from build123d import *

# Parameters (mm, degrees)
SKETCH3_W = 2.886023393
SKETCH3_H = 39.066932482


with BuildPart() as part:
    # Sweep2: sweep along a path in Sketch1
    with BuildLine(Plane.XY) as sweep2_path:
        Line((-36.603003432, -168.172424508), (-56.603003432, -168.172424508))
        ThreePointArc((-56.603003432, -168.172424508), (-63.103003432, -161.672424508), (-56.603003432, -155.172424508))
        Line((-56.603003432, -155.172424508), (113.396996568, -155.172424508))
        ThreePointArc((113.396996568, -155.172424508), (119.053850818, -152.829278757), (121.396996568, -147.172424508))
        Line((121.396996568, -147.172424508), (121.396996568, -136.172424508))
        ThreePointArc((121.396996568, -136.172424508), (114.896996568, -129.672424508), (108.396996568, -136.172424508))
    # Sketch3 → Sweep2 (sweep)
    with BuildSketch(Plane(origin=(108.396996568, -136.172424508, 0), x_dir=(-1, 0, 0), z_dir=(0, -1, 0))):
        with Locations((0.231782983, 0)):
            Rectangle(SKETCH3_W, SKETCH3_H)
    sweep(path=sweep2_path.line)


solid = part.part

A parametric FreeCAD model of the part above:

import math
import FreeCAD as App
import Part
import Sketcher

doc = App.newDocument("Part")
body = doc.addObject("PartDesign::Body", "Body")

# Sketch on XZ plane
sketch1 = body.newObject("Sketcher::SketchObject", "Sketch")
sketch1.AttachmentSupport = (doc.getObject("XZ_Plane"), [""])
sketch1.MapMode = "FlatFace"
sketch1.AttachmentOffset = App.Placement(App.Vector(0, 0, 136.172425), App.Rotation())
sketch1.addGeometry([
    Part.LineSegment(App.Vector(109.6, -19.5, 0), App.Vector(109.6, 19.5, 0)),
    Part.LineSegment(App.Vector(109.6, 19.5, 0), App.Vector(106.7, 19.5, 0)),
    Part.LineSegment(App.Vector(106.7, 19.5, 0), App.Vector(106.7, -19.5, 0)),
    Part.LineSegment(App.Vector(106.7, -19.5, 0), App.Vector(109.6, -19.5, 0)),
], False)
sketch1.addConstraint([
    Sketcher.Constraint("Coincident", 0, 2, 1, 1),
    Sketcher.Constraint("Coincident", 1, 2, 2, 1),
    Sketcher.Constraint("Coincident", 2, 2, 3, 1),
    Sketcher.Constraint("Coincident", 3, 2, 0, 1),
    Sketcher.Constraint("Vertical", 0),
    Sketcher.Constraint("Horizontal", 1),
    Sketcher.Constraint("Vertical", 2),
    Sketcher.Constraint("Horizontal", 3),
    Sketcher.Constraint("DistanceX", -1, 1, 1, 2, 106.722202),
    Sketcher.Constraint("DistanceX", 1, 2, 1, 1, 2.886023),
    Sketcher.Constraint("DistanceY", 0, 1, 0, 2, 39.066932),
    Sketcher.Constraint("DistanceY", -1, 1, 0, 2, 19.533466),
])

# Sketch on XY plane
sketch2 = body.newObject("Sketcher::SketchObject", "Sketch001")
sketch2.AttachmentSupport = (doc.getObject("XY_Plane"), [""])
sketch2.MapMode = "FlatFace"
sketch2.addGeometry([
    Part.LineSegment(App.Vector(-37, -168, 0), App.Vector(-57, -168, 0)),  # 0
    Part.ArcOfCircle(Part.Circle(App.Vector(-57, -162, 0), App.Vector(0, 0, 1), 6), math.radians(90), math.radians(270)),  # 1
    Part.LineSegment(App.Vector(-57, -155, 0), App.Vector(113, -155, 0)),  # 2
    Part.ArcOfCircle(Part.Circle(App.Vector(113, -147, 0), App.Vector(0, 0, 1), 8), math.radians(-90), math.radians(0)),  # 3
    Part.LineSegment(App.Vector(121, -147, 0), App.Vector(121, -136, 0)),  # 4
    Part.ArcOfCircle(Part.Circle(App.Vector(115, -136, 0), App.Vector(0, 0, 1), 6), math.radians(0), math.radians(180)),  # 5
], False)
sketch2.addConstraint([
    Sketcher.Constraint("Tangent", 0, 2, 1, 2),
    Sketcher.Constraint("Tangent", 1, 1, 2, 1),
    Sketcher.Constraint("Tangent", 2, 2, 3, 1),
    Sketcher.Constraint("Tangent", 3, 2, 4, 1),
    Sketcher.Constraint("Tangent", 4, 2, 5, 1),
    Sketcher.Constraint("Horizontal", 0),
    Sketcher.Constraint("Horizontal", 2),
    Sketcher.Constraint("Vertical", 4),
    Sketcher.Constraint("Equal", 1, 5),
    Sketcher.Constraint("Horizontal", 4, 2, 5, 2),
    Sketcher.Constraint("Radius", 3, 8.0),
    Sketcher.Constraint("Radius", 1, 6.5),
    Sketcher.Constraint("DistanceX", 0, 2, 0, 1, 20.0),
    Sketcher.Constraint("DistanceX", 2, 1, 2, 2, 170.0),
    Sketcher.Constraint("DistanceY", 4, 1, 4, 2, 11.0),
    Sketcher.Constraint("DistanceX", 1, 3, -1, 1, 56.603003),
    Sketcher.Constraint("DistanceY", 1, 3, -1, 1, 161.672425),
])
doc.recompute()

additivepipe = body.newObject("PartDesign::AdditivePipe", "AdditivePipe")
additivepipe.Profile = sketch1
additivepipe.Spine = (sketch2, ["Edge1", "Edge2", "Edge3", "Edge4", "Edge5", "Edge6"])

doc.recompute()
